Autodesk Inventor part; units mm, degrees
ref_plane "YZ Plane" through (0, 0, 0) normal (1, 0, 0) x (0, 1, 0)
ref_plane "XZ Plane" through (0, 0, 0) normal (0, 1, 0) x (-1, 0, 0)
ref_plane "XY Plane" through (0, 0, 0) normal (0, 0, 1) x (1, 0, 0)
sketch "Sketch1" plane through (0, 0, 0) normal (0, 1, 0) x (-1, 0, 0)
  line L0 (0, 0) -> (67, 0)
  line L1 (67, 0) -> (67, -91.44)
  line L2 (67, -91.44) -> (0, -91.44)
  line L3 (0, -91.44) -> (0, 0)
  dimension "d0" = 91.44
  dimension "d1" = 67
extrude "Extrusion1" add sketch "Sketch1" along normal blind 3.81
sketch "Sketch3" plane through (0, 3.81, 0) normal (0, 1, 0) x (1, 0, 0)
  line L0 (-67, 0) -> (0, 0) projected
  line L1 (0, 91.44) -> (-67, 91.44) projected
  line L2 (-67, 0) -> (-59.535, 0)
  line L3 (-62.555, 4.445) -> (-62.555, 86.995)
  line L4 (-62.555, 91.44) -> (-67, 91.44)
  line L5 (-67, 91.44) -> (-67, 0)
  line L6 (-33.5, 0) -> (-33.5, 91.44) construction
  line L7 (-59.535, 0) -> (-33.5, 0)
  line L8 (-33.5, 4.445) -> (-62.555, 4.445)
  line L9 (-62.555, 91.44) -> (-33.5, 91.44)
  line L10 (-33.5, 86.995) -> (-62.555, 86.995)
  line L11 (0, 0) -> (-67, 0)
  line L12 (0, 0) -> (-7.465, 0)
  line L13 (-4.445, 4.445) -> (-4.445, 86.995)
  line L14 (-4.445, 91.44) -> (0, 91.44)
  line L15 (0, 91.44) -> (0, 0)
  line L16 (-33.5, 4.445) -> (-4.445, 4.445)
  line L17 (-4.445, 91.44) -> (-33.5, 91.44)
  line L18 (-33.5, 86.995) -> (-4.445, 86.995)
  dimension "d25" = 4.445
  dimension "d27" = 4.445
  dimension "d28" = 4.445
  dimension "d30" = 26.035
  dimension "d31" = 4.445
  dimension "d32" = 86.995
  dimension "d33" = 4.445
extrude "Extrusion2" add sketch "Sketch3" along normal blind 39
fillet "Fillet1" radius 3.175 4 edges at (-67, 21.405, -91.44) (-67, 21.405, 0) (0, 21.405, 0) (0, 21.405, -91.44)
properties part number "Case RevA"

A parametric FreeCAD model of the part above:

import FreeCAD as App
import Part
import Sketcher
Q = App.Units.Quantity


def edges_at(feature, points):
    """Names of the edges that pass closest to the given points."""
    edges = feature.Shape.Edges
    near = lambda p: min(range(len(edges)), key=lambda i: edges[i].distToShape(Part.Vertex(*p))[0])
    return sorted({f"Edge{near(p) + 1}" for p in points})

doc = App.newDocument("Part")
body = doc.addObject("PartDesign::Body", "Body")

sketch1 = doc.addObject("Sketcher::SketchObject", "Sketch")
body.addObject(sketch1)
sketch1.AttachmentSupport = (doc.XZ_Plane, [""])
sketch1.MapMode = "FlatFace"
sketch1.addGeometry(Part.LineSegment(App.Vector(-67, 0, 0), App.Vector(0, 0, 0)), False)
sketch1.addGeometry(Part.LineSegment(App.Vector(0, 0, 0), App.Vector(0, -91, 0)), False)
sketch1.addGeometry(Part.LineSegment(App.Vector(0, -91, 0), App.Vector(-67, -91, 0)), False)
sketch1.addGeometry(Part.LineSegment(App.Vector(-67, -91, 0), App.Vector(-67, 0, 0)), False)
sketch1.addConstraint(Sketcher.Constraint("Coincident", 0, 2, 1, 1))
sketch1.addConstraint(Sketcher.Constraint("Coincident", 1, 2, 2, 1))
sketch1.addConstraint(Sketcher.Constraint("Coincident", 2, 2, 3, 1))
sketch1.addConstraint(Sketcher.Constraint("Coincident", 3, 2, 0, 1))
sketch1.addConstraint(Sketcher.Constraint("Horizontal", 0))
sketch1.addConstraint(Sketcher.Constraint("Vertical", 1))
sketch1.addConstraint(Sketcher.Constraint("Horizontal", 2))
sketch1.addConstraint(Sketcher.Constraint("Vertical", 3))
sketch1.addConstraint(Sketcher.Constraint("Coincident", 0, 2, -1, 1))
sketch1.addConstraint(Sketcher.Constraint("DistanceY", 1, 2, 1, 1, Q("3.6 in")))
sketch1.addConstraint(Sketcher.Constraint("DistanceX", 0, 1, 0, 2, Q("2.6378 in")))
pad1 = doc.addObject("PartDesign::Pad", "Pad")
body.addObject(pad1)
pad1.Profile = sketch1
pad1.Length = Q("0.15 in")
pad1.Reversed = True

sketch2 = doc.addObject("Sketcher::SketchObject", "Sketch001")
body.addObject(sketch2)
sketch2.AttachmentSupport = (doc.XZ_Plane, [""])
sketch2.MapMode = "FlatFace"
sketch2.AttachmentOffset = App.Placement(App.Vector(0, 0, -0.15 * 25.4), App.Rotation())
sketch2.addGeometry(Part.LineSegment(App.Vector(-67, -91, 0), App.Vector(-67, 0, 0)), False)
sketch2.addGeometry(Part.LineSegment(App.Vector(-67, 0, 0), App.Vector(0, 0, 0)), False)
sketch2.addGeometry(Part.LineSegment(App.Vector(0, 0, 0), App.Vector(0, -91, 0)), False)
sketch2.addGeometry(Part.LineSegment(App.Vector(0, -91, 0), App.Vector(-67, -91, 0)), False)
sketch2.addGeometry(Part.LineSegment(App.Vector(-4, -4, 0), App.Vector(-63, -4, 0)), False)
sketch2.addGeometry(Part.LineSegment(App.Vector(-63, -4, 0), App.Vector(-63, -87, 0)), False)
sketch2.addGeometry(Part.LineSegment(App.Vector(-63, -87, 0), App.Vector(-4, -87, 0)), False)
sketch2.addGeometry(Part.LineSegment(App.Vector(-4, -87, 0), App.Vector(-4, -4, 0)), False)
sketch2.addConstraint(Sketcher.Constraint("Coincident", 0, 2, 1, 1))
sketch2.addConstraint(Sketcher.Constraint("Coincident", 1, 2, 2, 1))
sketch2.addConstraint(Sketcher.Constraint("Coincident", 2, 2, 3, 1))
sketch2.addConstraint(Sketcher.Constraint("Coincident", 3, 2, 0, 1))
sketch2.addConstraint(Sketcher.Constraint("Coincident", 4, 2, 5, 1))
sketch2.addConstraint(Sketcher.Constraint("Coincident", 5, 2, 6, 1))
sketch2.addConstraint(Sketcher.Constraint("Coincident", 6, 2, 7, 1))
sketch2.addConstraint(Sketcher.Constraint("Coincident", 7, 2, 4, 1))
sketch2.addConstraint(Sketcher.Constraint("Vertical", 0))
sketch2.addConstraint(Sketcher.Constraint("Horizontal", 1))
sketch2.addConstraint(Sketcher.Constraint("Vertical", 2))
sketch2.addConstraint(Sketcher.Constraint("Horizontal", 3))
sketch2.addConstraint(Sketcher.Constraint("Horizontal", 4))
sketch2.addConstraint(Sketcher.Constraint("Vertical", 5))
sketch2.addConstraint(Sketcher.Constraint("Horizontal", 6))
sketch2.addConstraint(Sketcher.Constraint("Vertical", 7))
sketch2.addConstraint(Sketcher.Constraint("Coincident", 1, 2, -1, 1))
sketch2.addConstraint(Sketcher.Constraint("DistanceY", 0, 1, 0, 2, Q("3.6 in")))
sketch2.addConstraint(Sketcher.Constraint("DistanceY", 4, 2, -1, 1, Q("0.175 in")))
sketch2.addConstraint(Sketcher.Constraint("DistanceY", 5, 2, -1, 1, Q("3.425 in")))
sketch2.addConstraint(Sketcher.Constraint("DistanceX", 6, 2, -1, 1, Q("0.175 in")))
sketch2.addConstraint(Sketcher.Constraint("DistanceX", 0, 2, 4, 2, Q("0.175 in")))
sketch2.addConstraint(Sketcher.Constraint("DistanceX", 1, 1, 1, 2, Q("2.6378 in")))
pad2 = doc.addObject("PartDesign::Pad", "Pad001")
body.addObject(pad2)
pad2.Profile = sketch2
pad2.Length = 39
pad2.Reversed = True
doc.recompute()

fillet = doc.addObject("PartDesign::Fillet", "Fillet")
body.addObject(fillet)
fillet.Base = (pad2, edges_at(pad2, [
    (-67, 21.405, -91.44),
    (-67, 21.405, 0),
    (0, 21.405, 0),
    (0, 21.405, -91.44),
]))
fillet.Radius = Q("0.125 in")

doc.recompute()
